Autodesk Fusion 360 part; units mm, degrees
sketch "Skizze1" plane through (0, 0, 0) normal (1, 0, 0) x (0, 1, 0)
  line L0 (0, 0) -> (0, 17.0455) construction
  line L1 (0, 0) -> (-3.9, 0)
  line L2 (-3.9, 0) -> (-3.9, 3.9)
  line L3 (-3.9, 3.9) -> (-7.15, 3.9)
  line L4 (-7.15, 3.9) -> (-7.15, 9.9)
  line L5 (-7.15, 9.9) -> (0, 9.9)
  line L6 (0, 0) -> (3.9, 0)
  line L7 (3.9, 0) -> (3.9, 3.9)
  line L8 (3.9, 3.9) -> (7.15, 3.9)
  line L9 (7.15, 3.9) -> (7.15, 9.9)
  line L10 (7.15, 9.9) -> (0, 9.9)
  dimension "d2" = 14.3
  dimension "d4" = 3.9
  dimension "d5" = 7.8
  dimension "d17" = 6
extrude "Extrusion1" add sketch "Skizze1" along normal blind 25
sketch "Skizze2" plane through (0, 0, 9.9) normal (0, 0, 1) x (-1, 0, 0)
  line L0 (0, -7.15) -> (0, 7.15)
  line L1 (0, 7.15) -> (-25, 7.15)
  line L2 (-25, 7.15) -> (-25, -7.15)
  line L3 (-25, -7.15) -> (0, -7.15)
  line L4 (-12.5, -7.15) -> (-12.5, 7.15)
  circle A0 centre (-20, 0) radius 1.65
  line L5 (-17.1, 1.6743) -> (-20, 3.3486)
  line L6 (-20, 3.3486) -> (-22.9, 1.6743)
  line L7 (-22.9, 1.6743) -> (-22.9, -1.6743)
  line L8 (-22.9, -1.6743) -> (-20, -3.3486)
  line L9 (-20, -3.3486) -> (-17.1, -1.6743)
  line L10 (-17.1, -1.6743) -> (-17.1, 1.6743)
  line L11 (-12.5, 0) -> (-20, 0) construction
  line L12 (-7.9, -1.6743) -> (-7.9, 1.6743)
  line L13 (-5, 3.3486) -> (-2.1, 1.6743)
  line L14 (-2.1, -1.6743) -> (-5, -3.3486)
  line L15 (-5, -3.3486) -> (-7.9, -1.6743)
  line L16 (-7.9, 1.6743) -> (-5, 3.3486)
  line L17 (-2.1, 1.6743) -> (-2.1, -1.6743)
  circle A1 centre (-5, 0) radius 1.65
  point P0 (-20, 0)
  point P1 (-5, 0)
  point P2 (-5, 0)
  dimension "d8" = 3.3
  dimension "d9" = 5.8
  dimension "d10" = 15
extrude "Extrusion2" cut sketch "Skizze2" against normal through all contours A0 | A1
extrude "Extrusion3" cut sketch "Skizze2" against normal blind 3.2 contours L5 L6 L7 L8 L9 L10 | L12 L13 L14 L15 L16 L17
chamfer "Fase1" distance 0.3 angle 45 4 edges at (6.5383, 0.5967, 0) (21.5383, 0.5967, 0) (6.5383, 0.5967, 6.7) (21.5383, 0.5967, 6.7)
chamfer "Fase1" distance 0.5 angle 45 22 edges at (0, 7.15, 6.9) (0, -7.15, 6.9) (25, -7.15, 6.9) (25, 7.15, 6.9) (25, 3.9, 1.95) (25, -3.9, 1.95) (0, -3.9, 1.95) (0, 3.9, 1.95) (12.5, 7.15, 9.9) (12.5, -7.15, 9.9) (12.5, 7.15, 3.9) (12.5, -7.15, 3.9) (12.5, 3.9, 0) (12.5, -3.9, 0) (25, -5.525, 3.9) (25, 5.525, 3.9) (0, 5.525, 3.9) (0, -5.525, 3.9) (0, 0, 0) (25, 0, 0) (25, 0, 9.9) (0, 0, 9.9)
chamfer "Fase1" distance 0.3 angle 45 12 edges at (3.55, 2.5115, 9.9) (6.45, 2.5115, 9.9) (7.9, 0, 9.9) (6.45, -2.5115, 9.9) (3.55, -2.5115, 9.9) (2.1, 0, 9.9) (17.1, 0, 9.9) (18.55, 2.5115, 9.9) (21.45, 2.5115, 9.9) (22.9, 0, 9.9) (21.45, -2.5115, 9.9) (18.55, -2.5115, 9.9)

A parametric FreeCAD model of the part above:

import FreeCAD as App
import Part
import Sketcher

V = App.Vector
Q = App.Units.Quantity


def edges_at(feature, points):
    """Names of the edges that pass closest to the given points."""
    edges = feature.Shape.Edges
    near = lambda p: min(range(len(edges)), key=lambda i: edges[i].distToShape(Part.Vertex(*p))[0])
    return sorted({f"Edge{near(p) + 1}" for p in points})

doc = App.newDocument("Part")
body = doc.addObject("PartDesign::Body", "Body")

# Sketch on YZ plane
sketch1 = doc.addObject("Sketcher::SketchObject", "Sketch")
body.addObject(sketch1)
sketch1.AttachmentSupport = (doc.YZ_Plane, [""])
sketch1.MapMode = "FlatFace"
sketch1.addGeometry([
    Part.LineSegment(V(-3.9, 0, 0), V(3.9, 0, 0)),  # 0
    Part.LineSegment(V(3.9, 0, 0), V(3.9, 3.9, 0)),  # 1
    Part.LineSegment(V(3.9, 3.9, 0), V(7.2, 3.9, 0)),  # 2
    Part.LineSegment(V(7.2, 3.9, 0), V(7.2, 9.9, 0)),  # 3
    Part.LineSegment(V(7.2, 9.9, 0), V(-7.2, 9.9, 0)),  # 4
    Part.LineSegment(V(-7.2, 9.9, 0), V(-7.2, 3.9, 0)),  # 5
    Part.LineSegment(V(-7.2, 3.9, 0), V(-3.9, 3.9, 0)),  # 6
    Part.LineSegment(V(-3.9, 3.9, 0), V(-3.9, 0, 0)),  # 7
], False)
sketch1.addConstraint([
    Sketcher.Constraint("Coincident", 0, 2, 1, 1),
    Sketcher.Constraint("Coincident", 1, 2, 2, 1),
    Sketcher.Constraint("Coincident", 2, 2, 3, 1),
    Sketcher.Constraint("Coincident", 3, 2, 4, 1),
    Sketcher.Constraint("Coincident", 4, 2, 5, 1),
    Sketcher.Constraint("Coincident", 5, 2, 6, 1),
    Sketcher.Constraint("Coincident", 6, 2, 7, 1),
    Sketcher.Constraint("Coincident", 7, 2, 0, 1),
    Sketcher.Constraint("Horizontal", 0),
    Sketcher.Constraint("Vertical", 1),
    Sketcher.Constraint("Horizontal", 2),
    Sketcher.Constraint("Vertical", 3),
    Sketcher.Constraint("Horizontal", 4),
    Sketcher.Constraint("Vertical", 5),
    Sketcher.Constraint("Horizontal", 6),
    Sketcher.Constraint("Vertical", 7),
    Sketcher.Constraint("Symmetric", 0, 2, 7, 2, -1, 1),
    Sketcher.Constraint("Symmetric", 2, 2, 5, 2, -2),
    Sketcher.Constraint("DistanceY", 3, 1, 3, 2, 6.0),
    Sketcher.Constraint("DistanceX", 0, 1, 0, 2, 7.8),
    Sketcher.Constraint("DistanceX", 4, 2, 4, 1, 14.3),
    Sketcher.Constraint("DistanceY", 1, 1, 1, 2, 3.9),
])
pad1 = doc.addObject("PartDesign::Pad", "Pad")
body.addObject(pad1)
pad1.Profile = sketch1
pad1.Length = 25

# Sketch on XY plane
sketch2 = doc.addObject("Sketcher::SketchObject", "Sketch001")
body.addObject(sketch2)
sketch2.AttachmentSupport = (doc.XY_Plane, [""])
sketch2.MapMode = "FlatFace"
sketch2.AttachmentOffset = App.Placement(V(0, 0, 9.9), App.Rotation())
sketch2.addGeometry([
    Part.Circle(V(20, 0, 0), V(0, 0, 1), 1.6),
    Part.Circle(V(5, 0, 0), V(0, 0, 1), 1.6),
], False)
sketch2.addConstraint([
    Sketcher.Constraint("Equal", 0, 1),
    Sketcher.Constraint("PointOnObject", 0, 3, -1),
    Sketcher.Constraint("PointOnObject", 1, 3, -1),
    Sketcher.Constraint("Diameter", 0, 3.3),
    Sketcher.Constraint("DistanceX", 1, 3, 0, 3, 15.0),
    Sketcher.Constraint("DistanceX", -1, 1, 0, 3, 20.0),
])
pocket1 = doc.addObject("PartDesign::Pocket", "Pocket")
body.addObject(pocket1)
pocket1.Profile = sketch2
pocket1.Type = "ThroughAll"

# Sketch on XY plane
sketch3 = doc.addObject("Sketcher::SketchObject", "Sketch002")
body.addObject(sketch3)
sketch3.AttachmentSupport = (doc.XY_Plane, [""])
sketch3.MapMode = "FlatFace"
sketch3.AttachmentOffset = App.Placement(V(0, 0, 9.9), App.Rotation())
sketch3.addGeometry([
    Part.LineSegment(V(17.1, 1.7, 0), V(17.1, -1.7, 0)),  # 0
    Part.LineSegment(V(17.1, -1.7, 0), V(20, -3.3, 0)),  # 1
    Part.LineSegment(V(20, -3.3, 0), V(22.9, -1.7, 0)),  # 2
    Part.LineSegment(V(22.9, -1.7, 0), V(22.9, 1.7, 0)),  # 3
    Part.LineSegment(V(22.9, 1.7, 0), V(20, 3.3, 0)),  # 4
    Part.LineSegment(V(20, 3.3, 0), V(17.1, 1.7, 0)),  # 5
    Part.Circle(V(20, 0, 0), V(0, 0, 1), 1.6),  # 6
    Part.LineSegment(V(7.9, -1.7, 0), V(7.9, 1.7, 0)),  # 7
    Part.LineSegment(V(7.9, 1.7, 0), V(5, 3.3, 0)),  # 8
    Part.LineSegment(V(5, 3.3, 0), V(2.1, 1.7, 0)),  # 9
    Part.LineSegment(V(2.1, 1.7, 0), V(2.1, -1.7, 0)),  # 10
    Part.LineSegment(V(2.1, -1.7, 0), V(5, -3.3, 0)),  # 11
    Part.LineSegment(V(5, -3.3, 0), V(7.9, -1.7, 0)),  # 12
    Part.Circle(V(5, 0, 0), V(0, 0, 1), 1.6),  # 13
], False)
sketch3.addConstraint([
    Sketcher.Constraint("Coincident", 0, 2, 1, 1),
    Sketcher.Constraint("Coincident", 1, 2, 2, 1),
    Sketcher.Constraint("Coincident", 2, 2, 3, 1),
    Sketcher.Constraint("Coincident", 3, 2, 4, 1),
    Sketcher.Constraint("Coincident", 4, 2, 5, 1),
    Sketcher.Constraint("Coincident", 5, 2, 0, 1),
    Sketcher.Constraint("Coincident", 7, 2, 8, 1),
    Sketcher.Constraint("Coincident", 8, 2, 9, 1),
    Sketcher.Constraint("Coincident", 9, 2, 10, 1),
    Sketcher.Constraint("Coincident", 10, 2, 11, 1),
    Sketcher.Constraint("Coincident", 11, 2, 12, 1),
    Sketcher.Constraint("Coincident", 12, 2, 7, 1),
    Sketcher.Constraint("Vertical", 0),
    Sketcher.Constraint("Vertical", 3),
    Sketcher.Constraint("Vertical", 7),
    Sketcher.Constraint("Vertical", 10),
    Sketcher.Constraint("Equal", 6, 13),
    Sketcher.Constraint("Symmetric", 1, 2, 4, 2, -1),
    Sketcher.Constraint("Symmetric", 8, 2, 11, 2, -1),
    Sketcher.Constraint("PointOnObject", 6, 3, -1),
    Sketcher.Constraint("PointOnObject", 13, 3, -1),
    Sketcher.Constraint("Parallel", 1, 4),
    Sketcher.Constraint("Parallel", 2, 5),
    Sketcher.Constraint("Parallel", 4, 8),
    Sketcher.Constraint("Parallel", 5, 9),
    Sketcher.Constraint("Parallel", 8, 11),
    Sketcher.Constraint("Parallel", 9, 12),
    Sketcher.Constraint("Horizontal", 0, 2, 2, 2),
    Sketcher.Constraint("Horizontal", 3, 2, 5, 2),
    Sketcher.Constraint("Horizontal", 5, 2, 7, 2),
    Sketcher.Constraint("Horizontal", 4, 2, 8, 2),
    Sketcher.Constraint("Horizontal", 7, 2, 9, 2),
    Sketcher.Constraint("Vertical", 6, 3, 1, 2),
    Sketcher.Constraint("Vertical", 13, 3, 8, 2),
    Sketcher.Constraint("Diameter", 6, 3.3),
    Sketcher.Constraint("DistanceX", 13, 3, 6, 3, 15.0),
    Sketcher.Constraint("DistanceX", 0, 2, 2, 2, 5.8),
    Sketcher.Constraint("Angle", 1, Q("-29.9998 deg")),
    Sketcher.Constraint("DistanceX", -1, 1, 6, 3, 20.0),
    Sketcher.Constraint("DistanceY", 0, 2, 0, 1, 3.3486),
])
pocket2 = doc.addObject("PartDesign::Pocket", "Pocket001")
body.addObject(pocket2)
pocket2.Profile = sketch3
pocket2.Length = 3.2
doc.recompute()

chamfer = doc.addObject("PartDesign::Chamfer", "Chamfer")
body.addObject(chamfer)
chamfer.Base = (pocket2, edges_at(pocket2, [
    (6.538, 0.597, 0),
    (21.538, 0.597, 0),
    (6.538, 0.597, 6.7),
    (21.538, 0.597, 6.7),
]))
chamfer.Size = 0.3
doc.recompute()

chamfer2 = doc.addObject("PartDesign::Chamfer", "Chamfer001")
body.addObject(chamfer2)
chamfer2.Base = (chamfer, edges_at(chamfer, [
    (0, 7.15, 6.9),
    (0, -7.15, 6.9),
    (25, -7.15, 6.9),
    (25, 7.15, 6.9),
    (25, 3.9, 1.95),
    (25, -3.9, 1.95),
    (0, -3.9, 1.95),
    (0, 3.9, 1.95),
    (12.5, 7.15, 9.9),
    (12.5, -7.15, 9.9),
    (12.5, 7.15, 3.9),
    (12.5, -7.15, 3.9),
    (12.5, 3.9, 0),
    (12.5, -3.9, 0),
    (25, -5.525, 3.9),
    (25, 5.525, 3.9),
    (0, 5.525, 3.9),
    (0, -5.525, 3.9),
    (0, 0, 0),
    (25, 0, 0),
    (25, 0, 9.9),
    (0, 0, 9.9),
]))
chamfer2.Size = 0.5
doc.recompute()

chamfer3 = doc.addObject("PartDesign::Chamfer", "Chamfer002")
body.addObject(chamfer3)
chamfer3.Base = (chamfer2, edges_at(chamfer2, [
    (3.55, 2.511, 9.9),
    (6.45, 2.511, 9.9),
    (7.9, 0, 9.9),
    (6.45, -2.511, 9.9),
    (3.55, -2.511, 9.9),
    (2.1, 0, 9.9),
    (17.1, 0, 9.9),
    (18.55, 2.511, 9.9),
    (21.45, 2.511, 9.9),
    (22.9, 0, 9.9),
    (21.45, -2.511, 9.9),
    (18.55, -2.511, 9.9),
]))
chamfer3.Size = 0.3

doc.recompute()
